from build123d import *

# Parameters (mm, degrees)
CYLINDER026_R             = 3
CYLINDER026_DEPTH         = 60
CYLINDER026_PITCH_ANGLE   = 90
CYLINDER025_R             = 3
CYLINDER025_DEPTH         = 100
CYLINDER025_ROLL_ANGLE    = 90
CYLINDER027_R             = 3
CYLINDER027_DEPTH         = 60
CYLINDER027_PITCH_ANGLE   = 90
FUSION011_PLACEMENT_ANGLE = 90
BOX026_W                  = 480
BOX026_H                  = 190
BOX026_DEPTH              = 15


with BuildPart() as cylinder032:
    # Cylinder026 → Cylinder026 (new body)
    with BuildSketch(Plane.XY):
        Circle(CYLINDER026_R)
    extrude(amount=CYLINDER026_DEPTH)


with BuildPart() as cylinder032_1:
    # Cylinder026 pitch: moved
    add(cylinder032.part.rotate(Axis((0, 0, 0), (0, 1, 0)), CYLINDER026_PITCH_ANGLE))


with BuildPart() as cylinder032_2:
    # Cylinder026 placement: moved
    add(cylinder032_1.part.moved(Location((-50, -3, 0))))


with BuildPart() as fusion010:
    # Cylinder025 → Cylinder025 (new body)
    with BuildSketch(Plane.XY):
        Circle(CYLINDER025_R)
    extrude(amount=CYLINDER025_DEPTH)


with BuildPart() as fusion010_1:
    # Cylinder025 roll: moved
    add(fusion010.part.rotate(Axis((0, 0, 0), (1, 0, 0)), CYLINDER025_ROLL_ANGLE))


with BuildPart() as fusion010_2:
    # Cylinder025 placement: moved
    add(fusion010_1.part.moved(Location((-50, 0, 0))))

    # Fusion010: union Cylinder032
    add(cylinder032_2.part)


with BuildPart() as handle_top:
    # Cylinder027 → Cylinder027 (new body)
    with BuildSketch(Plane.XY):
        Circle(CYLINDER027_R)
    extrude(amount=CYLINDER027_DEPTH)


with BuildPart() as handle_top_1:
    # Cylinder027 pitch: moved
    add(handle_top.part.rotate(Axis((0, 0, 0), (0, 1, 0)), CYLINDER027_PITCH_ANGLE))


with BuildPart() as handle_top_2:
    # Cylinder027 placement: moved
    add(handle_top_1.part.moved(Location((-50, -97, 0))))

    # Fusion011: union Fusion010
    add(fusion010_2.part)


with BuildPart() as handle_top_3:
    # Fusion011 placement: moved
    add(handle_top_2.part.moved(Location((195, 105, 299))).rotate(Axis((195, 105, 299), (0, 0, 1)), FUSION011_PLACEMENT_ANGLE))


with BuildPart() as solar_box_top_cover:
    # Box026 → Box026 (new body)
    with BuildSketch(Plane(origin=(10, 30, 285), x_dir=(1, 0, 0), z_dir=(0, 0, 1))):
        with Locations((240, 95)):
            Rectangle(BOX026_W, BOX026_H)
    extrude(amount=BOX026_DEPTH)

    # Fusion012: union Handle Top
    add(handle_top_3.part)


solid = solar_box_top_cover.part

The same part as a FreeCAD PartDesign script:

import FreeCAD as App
import Part
import Sketcher
from FreeCAD import Vector
Q = App.Units.Quantity


def add_polygon(sketch, points):
    """Adds a closed chain of lines whose ends are joined by coincident constraints."""
    first, n = sketch.GeometryCount, len(points)
    for a, b in zip(points, points[1:] + points[:1]):
        sketch.addGeometry(Part.LineSegment(App.Vector(*a, 0), App.Vector(*b, 0)), False)
    for i in range(n):
        sketch.addConstraint(Sketcher.Constraint("Coincident", first + i, 2, first + (i + 1) % n, 1))

doc = App.newDocument("Part")
params = doc.addObject("Spreadsheet::Sheet", "Params")
for row, (alias, value) in enumerate([
    ("sketch1_diameter", "6 mm"),
    ("pad1_length", "60 mm"),
    ("sketch2_diameter", "6 mm"),
    ("pad2_length", "100 mm"),
    ("sketch3_diameter", "6 mm"),
    ("pad3_length", "60 mm"),
    ("sketch4_width", "480 mm"),
    ("sketch4_height", "190 mm"),
    ("pad4_length", "15 mm"),
], start=1):
    params.set(f"A{row}", alias)
    params.set(f"B{row}", "=" + value)
    params.setAlias(f"B{row}", alias)

body = doc.addObject("PartDesign::Body", "Body")

# Sketch on XY plane
sketch1 = doc.addObject("Sketcher::SketchObject", "Sketch")
body.addObject(sketch1)
sketch1.AttachmentSupport = (doc.XY_Plane, [""])
sketch1.MapMode = "FlatFace"
sketch1.addGeometry(Part.Circle(Vector(0, 0, 0), Vector(0, 0, 1), 3), False)
sketch1.addConstraint([
    Sketcher.Constraint("Coincident", 0, 3, -1, 1),
    Sketcher.Constraint("Diameter", 0, Q("6 mm")),
])
sketch1.setExpression("Constraints[1]", "Params.sketch1_diameter")
pad1 = doc.addObject("PartDesign::Pad", "Pad")
body.addObject(pad1)
pad1.Profile = sketch1
pad1.setExpression("Length", "Params.pad1_length")
body2 = doc.addObject("PartDesign::Body", "Body001")
doc.recompute()

body.Placement = App.Placement(Vector(0, 0, 0), App.Rotation(Vector(0, 1, 0), 90))
boolean = doc.addObject("PartDesign::Boolean", "Boolean")
body2.addObject(boolean)
boolean.Type = "Fuse"
boolean.addObjects([body])
body3 = doc.addObject("PartDesign::Body", "Body002")
doc.recompute()

body2.Placement = App.Placement(Vector(-50, -3, 0), App.Rotation(Vector(0, 0, 1), 0))
boolean2 = doc.addObject("PartDesign::Boolean", "Boolean001")
body3.addObject(boolean2)
boolean2.Type = "Fuse"
boolean2.addObjects([body2])
body4 = doc.addObject("PartDesign::Body", "Body003")

# Sketch on XY plane
sketch2 = doc.addObject("Sketcher::SketchObject", "Sketch001")
body4.addObject(sketch2)
sketch2.AttachmentSupport = (doc.getObject("XY_Plane003"), [""])
sketch2.MapMode = "FlatFace"
sketch2.addGeometry(Part.Circle(Vector(0, 0, 0), Vector(0, 0, 1), 3), False)
sketch2.addConstraint([
    Sketcher.Constraint("Coincident", 0, 3, -1, 1),
    Sketcher.Constraint("Diameter", 0, Q("6 mm")),
])
sketch2.setExpression("Constraints[1]", "Params.sketch2_diameter")
pad2 = doc.addObject("PartDesign::Pad", "Pad001")
body4.addObject(pad2)
pad2.Profile = sketch2
pad2.setExpression("Length", "Params.pad2_length")
body5 = doc.addObject("PartDesign::Body", "Body004")
doc.recompute()

body4.Placement = App.Placement(Vector(0, 0, 0), App.Rotation(Vector(1, 0, 0), 90))
boolean3 = doc.addObject("PartDesign::Boolean", "Boolean002")
body5.addObject(boolean3)
boolean3.Type = "Fuse"
boolean3.addObjects([body4])
body6 = doc.addObject("PartDesign::Body", "Body005")
doc.recompute()

body5.Placement = App.Placement(Vector(-50, 0, 0), App.Rotation(Vector(0, 0, 1), 0))
boolean4 = doc.addObject("PartDesign::Boolean", "Boolean003")
body6.addObject(boolean4)
boolean4.Type = "Fuse"
boolean4.addObjects([body5])
doc.recompute()

boolean5 = doc.addObject("PartDesign::Boolean", "Boolean004")
body6.addObject(boolean5)
boolean5.Type = "Fuse"
boolean5.addObjects([body3])
body7 = doc.addObject("PartDesign::Body", "Body006")

# Sketch on XY plane
sketch3 = doc.addObject("Sketcher::SketchObject", "Sketch002")
body7.addObject(sketch3)
sketch3.AttachmentSupport = (doc.getObject("XY_Plane006"), [""])
sketch3.MapMode = "FlatFace"
sketch3.addGeometry(Part.Circle(Vector(0, 0, 0), Vector(0, 0, 1), 3), False)
sketch3.addConstraint([
    Sketcher.Constraint("Coincident", 0, 3, -1, 1),
    Sketcher.Constraint("Diameter", 0, Q("6 mm")),
])
sketch3.setExpression("Constraints[1]", "Params.sketch3_diameter")
pad3 = doc.addObject("PartDesign::Pad", "Pad002")
body7.addObject(pad3)
pad3.Profile = sketch3
pad3.setExpression("Length", "Params.pad3_length")
body8 = doc.addObject("PartDesign::Body", "Body007")
doc.recompute()

body7.Placement = App.Placement(Vector(0, 0, 0), App.Rotation(Vector(0, 1, 0), 90))
boolean6 = doc.addObject("PartDesign::Boolean", "Boolean005")
body8.addObject(boolean6)
boolean6.Type = "Fuse"
boolean6.addObjects([body7])
body9 = doc.addObject("PartDesign::Body", "Body008")
doc.recompute()

body8.Placement = App.Placement(Vector(-50, -97, 0), App.Rotation(Vector(0, 0, 1), 0))
boolean7 = doc.addObject("PartDesign::Boolean", "Boolean006")
body9.addObject(boolean7)
boolean7.Type = "Fuse"
boolean7.addObjects([body8])
doc.recompute()

boolean8 = doc.addObject("PartDesign::Boolean", "Boolean007")
body9.addObject(boolean8)
boolean8.Type = "Fuse"
boolean8.addObjects([body6])
body10 = doc.addObject("PartDesign::Body", "Body009")
doc.recompute()

body9.Placement = App.Placement(Vector(195, 105, 299), App.Rotation(Vector(0, 0, 1), 90))
boolean9 = doc.addObject("PartDesign::Boolean", "Boolean008")
body10.addObject(boolean9)
boolean9.Type = "Fuse"
boolean9.addObjects([body9])
body11 = doc.addObject("PartDesign::Body", "Body010")

# Sketch on XY plane
sketch4 = doc.addObject("Sketcher::SketchObject", "Sketch003")
body11.addObject(sketch4)
sketch4.AttachmentSupport = (doc.getObject("XY_Plane010"), [""])
sketch4.MapMode = "FlatFace"
sketch4.AttachmentOffset = App.Placement(Vector(0, 0, 285), App.Rotation())
add_polygon(sketch4, [(10, 220), (10, 30), (490, 30), (490, 220)])  # lines 0-3
sketch4.addConstraint([
    Sketcher.Constraint("Vertical", 0),
    Sketcher.Constraint("Horizontal", 1),
    Sketcher.Constraint("Vertical", 2),
    Sketcher.Constraint("Horizontal", 3),
    Sketcher.Constraint("DistanceX", 1, 1, 1, 2, Q("480 mm")),
    Sketcher.Constraint("DistanceY", 0, 2, 0, 1, Q("190 mm")),
    Sketcher.Constraint("DistanceX", -1, 1, 0, 2, Q("10 mm")),
    Sketcher.Constraint("DistanceY", -1, 1, 0, 2, Q("30 mm")),
])
sketch4.setExpression("Constraints[8]", "Params.sketch4_width")
sketch4.setExpression("Constraints[9]", "Params.sketch4_height")
pad4 = doc.addObject("PartDesign::Pad", "Pad003")
body11.addObject(pad4)
pad4.Profile = sketch4
pad4.setExpression("Length", "Params.pad4_length")
doc.recompute()

boolean10 = doc.addObject("PartDesign::Boolean", "Boolean009")
body11.addObject(boolean10)
boolean10.Type = "Fuse"
boolean10.addObjects([body10])

doc.recompute()
